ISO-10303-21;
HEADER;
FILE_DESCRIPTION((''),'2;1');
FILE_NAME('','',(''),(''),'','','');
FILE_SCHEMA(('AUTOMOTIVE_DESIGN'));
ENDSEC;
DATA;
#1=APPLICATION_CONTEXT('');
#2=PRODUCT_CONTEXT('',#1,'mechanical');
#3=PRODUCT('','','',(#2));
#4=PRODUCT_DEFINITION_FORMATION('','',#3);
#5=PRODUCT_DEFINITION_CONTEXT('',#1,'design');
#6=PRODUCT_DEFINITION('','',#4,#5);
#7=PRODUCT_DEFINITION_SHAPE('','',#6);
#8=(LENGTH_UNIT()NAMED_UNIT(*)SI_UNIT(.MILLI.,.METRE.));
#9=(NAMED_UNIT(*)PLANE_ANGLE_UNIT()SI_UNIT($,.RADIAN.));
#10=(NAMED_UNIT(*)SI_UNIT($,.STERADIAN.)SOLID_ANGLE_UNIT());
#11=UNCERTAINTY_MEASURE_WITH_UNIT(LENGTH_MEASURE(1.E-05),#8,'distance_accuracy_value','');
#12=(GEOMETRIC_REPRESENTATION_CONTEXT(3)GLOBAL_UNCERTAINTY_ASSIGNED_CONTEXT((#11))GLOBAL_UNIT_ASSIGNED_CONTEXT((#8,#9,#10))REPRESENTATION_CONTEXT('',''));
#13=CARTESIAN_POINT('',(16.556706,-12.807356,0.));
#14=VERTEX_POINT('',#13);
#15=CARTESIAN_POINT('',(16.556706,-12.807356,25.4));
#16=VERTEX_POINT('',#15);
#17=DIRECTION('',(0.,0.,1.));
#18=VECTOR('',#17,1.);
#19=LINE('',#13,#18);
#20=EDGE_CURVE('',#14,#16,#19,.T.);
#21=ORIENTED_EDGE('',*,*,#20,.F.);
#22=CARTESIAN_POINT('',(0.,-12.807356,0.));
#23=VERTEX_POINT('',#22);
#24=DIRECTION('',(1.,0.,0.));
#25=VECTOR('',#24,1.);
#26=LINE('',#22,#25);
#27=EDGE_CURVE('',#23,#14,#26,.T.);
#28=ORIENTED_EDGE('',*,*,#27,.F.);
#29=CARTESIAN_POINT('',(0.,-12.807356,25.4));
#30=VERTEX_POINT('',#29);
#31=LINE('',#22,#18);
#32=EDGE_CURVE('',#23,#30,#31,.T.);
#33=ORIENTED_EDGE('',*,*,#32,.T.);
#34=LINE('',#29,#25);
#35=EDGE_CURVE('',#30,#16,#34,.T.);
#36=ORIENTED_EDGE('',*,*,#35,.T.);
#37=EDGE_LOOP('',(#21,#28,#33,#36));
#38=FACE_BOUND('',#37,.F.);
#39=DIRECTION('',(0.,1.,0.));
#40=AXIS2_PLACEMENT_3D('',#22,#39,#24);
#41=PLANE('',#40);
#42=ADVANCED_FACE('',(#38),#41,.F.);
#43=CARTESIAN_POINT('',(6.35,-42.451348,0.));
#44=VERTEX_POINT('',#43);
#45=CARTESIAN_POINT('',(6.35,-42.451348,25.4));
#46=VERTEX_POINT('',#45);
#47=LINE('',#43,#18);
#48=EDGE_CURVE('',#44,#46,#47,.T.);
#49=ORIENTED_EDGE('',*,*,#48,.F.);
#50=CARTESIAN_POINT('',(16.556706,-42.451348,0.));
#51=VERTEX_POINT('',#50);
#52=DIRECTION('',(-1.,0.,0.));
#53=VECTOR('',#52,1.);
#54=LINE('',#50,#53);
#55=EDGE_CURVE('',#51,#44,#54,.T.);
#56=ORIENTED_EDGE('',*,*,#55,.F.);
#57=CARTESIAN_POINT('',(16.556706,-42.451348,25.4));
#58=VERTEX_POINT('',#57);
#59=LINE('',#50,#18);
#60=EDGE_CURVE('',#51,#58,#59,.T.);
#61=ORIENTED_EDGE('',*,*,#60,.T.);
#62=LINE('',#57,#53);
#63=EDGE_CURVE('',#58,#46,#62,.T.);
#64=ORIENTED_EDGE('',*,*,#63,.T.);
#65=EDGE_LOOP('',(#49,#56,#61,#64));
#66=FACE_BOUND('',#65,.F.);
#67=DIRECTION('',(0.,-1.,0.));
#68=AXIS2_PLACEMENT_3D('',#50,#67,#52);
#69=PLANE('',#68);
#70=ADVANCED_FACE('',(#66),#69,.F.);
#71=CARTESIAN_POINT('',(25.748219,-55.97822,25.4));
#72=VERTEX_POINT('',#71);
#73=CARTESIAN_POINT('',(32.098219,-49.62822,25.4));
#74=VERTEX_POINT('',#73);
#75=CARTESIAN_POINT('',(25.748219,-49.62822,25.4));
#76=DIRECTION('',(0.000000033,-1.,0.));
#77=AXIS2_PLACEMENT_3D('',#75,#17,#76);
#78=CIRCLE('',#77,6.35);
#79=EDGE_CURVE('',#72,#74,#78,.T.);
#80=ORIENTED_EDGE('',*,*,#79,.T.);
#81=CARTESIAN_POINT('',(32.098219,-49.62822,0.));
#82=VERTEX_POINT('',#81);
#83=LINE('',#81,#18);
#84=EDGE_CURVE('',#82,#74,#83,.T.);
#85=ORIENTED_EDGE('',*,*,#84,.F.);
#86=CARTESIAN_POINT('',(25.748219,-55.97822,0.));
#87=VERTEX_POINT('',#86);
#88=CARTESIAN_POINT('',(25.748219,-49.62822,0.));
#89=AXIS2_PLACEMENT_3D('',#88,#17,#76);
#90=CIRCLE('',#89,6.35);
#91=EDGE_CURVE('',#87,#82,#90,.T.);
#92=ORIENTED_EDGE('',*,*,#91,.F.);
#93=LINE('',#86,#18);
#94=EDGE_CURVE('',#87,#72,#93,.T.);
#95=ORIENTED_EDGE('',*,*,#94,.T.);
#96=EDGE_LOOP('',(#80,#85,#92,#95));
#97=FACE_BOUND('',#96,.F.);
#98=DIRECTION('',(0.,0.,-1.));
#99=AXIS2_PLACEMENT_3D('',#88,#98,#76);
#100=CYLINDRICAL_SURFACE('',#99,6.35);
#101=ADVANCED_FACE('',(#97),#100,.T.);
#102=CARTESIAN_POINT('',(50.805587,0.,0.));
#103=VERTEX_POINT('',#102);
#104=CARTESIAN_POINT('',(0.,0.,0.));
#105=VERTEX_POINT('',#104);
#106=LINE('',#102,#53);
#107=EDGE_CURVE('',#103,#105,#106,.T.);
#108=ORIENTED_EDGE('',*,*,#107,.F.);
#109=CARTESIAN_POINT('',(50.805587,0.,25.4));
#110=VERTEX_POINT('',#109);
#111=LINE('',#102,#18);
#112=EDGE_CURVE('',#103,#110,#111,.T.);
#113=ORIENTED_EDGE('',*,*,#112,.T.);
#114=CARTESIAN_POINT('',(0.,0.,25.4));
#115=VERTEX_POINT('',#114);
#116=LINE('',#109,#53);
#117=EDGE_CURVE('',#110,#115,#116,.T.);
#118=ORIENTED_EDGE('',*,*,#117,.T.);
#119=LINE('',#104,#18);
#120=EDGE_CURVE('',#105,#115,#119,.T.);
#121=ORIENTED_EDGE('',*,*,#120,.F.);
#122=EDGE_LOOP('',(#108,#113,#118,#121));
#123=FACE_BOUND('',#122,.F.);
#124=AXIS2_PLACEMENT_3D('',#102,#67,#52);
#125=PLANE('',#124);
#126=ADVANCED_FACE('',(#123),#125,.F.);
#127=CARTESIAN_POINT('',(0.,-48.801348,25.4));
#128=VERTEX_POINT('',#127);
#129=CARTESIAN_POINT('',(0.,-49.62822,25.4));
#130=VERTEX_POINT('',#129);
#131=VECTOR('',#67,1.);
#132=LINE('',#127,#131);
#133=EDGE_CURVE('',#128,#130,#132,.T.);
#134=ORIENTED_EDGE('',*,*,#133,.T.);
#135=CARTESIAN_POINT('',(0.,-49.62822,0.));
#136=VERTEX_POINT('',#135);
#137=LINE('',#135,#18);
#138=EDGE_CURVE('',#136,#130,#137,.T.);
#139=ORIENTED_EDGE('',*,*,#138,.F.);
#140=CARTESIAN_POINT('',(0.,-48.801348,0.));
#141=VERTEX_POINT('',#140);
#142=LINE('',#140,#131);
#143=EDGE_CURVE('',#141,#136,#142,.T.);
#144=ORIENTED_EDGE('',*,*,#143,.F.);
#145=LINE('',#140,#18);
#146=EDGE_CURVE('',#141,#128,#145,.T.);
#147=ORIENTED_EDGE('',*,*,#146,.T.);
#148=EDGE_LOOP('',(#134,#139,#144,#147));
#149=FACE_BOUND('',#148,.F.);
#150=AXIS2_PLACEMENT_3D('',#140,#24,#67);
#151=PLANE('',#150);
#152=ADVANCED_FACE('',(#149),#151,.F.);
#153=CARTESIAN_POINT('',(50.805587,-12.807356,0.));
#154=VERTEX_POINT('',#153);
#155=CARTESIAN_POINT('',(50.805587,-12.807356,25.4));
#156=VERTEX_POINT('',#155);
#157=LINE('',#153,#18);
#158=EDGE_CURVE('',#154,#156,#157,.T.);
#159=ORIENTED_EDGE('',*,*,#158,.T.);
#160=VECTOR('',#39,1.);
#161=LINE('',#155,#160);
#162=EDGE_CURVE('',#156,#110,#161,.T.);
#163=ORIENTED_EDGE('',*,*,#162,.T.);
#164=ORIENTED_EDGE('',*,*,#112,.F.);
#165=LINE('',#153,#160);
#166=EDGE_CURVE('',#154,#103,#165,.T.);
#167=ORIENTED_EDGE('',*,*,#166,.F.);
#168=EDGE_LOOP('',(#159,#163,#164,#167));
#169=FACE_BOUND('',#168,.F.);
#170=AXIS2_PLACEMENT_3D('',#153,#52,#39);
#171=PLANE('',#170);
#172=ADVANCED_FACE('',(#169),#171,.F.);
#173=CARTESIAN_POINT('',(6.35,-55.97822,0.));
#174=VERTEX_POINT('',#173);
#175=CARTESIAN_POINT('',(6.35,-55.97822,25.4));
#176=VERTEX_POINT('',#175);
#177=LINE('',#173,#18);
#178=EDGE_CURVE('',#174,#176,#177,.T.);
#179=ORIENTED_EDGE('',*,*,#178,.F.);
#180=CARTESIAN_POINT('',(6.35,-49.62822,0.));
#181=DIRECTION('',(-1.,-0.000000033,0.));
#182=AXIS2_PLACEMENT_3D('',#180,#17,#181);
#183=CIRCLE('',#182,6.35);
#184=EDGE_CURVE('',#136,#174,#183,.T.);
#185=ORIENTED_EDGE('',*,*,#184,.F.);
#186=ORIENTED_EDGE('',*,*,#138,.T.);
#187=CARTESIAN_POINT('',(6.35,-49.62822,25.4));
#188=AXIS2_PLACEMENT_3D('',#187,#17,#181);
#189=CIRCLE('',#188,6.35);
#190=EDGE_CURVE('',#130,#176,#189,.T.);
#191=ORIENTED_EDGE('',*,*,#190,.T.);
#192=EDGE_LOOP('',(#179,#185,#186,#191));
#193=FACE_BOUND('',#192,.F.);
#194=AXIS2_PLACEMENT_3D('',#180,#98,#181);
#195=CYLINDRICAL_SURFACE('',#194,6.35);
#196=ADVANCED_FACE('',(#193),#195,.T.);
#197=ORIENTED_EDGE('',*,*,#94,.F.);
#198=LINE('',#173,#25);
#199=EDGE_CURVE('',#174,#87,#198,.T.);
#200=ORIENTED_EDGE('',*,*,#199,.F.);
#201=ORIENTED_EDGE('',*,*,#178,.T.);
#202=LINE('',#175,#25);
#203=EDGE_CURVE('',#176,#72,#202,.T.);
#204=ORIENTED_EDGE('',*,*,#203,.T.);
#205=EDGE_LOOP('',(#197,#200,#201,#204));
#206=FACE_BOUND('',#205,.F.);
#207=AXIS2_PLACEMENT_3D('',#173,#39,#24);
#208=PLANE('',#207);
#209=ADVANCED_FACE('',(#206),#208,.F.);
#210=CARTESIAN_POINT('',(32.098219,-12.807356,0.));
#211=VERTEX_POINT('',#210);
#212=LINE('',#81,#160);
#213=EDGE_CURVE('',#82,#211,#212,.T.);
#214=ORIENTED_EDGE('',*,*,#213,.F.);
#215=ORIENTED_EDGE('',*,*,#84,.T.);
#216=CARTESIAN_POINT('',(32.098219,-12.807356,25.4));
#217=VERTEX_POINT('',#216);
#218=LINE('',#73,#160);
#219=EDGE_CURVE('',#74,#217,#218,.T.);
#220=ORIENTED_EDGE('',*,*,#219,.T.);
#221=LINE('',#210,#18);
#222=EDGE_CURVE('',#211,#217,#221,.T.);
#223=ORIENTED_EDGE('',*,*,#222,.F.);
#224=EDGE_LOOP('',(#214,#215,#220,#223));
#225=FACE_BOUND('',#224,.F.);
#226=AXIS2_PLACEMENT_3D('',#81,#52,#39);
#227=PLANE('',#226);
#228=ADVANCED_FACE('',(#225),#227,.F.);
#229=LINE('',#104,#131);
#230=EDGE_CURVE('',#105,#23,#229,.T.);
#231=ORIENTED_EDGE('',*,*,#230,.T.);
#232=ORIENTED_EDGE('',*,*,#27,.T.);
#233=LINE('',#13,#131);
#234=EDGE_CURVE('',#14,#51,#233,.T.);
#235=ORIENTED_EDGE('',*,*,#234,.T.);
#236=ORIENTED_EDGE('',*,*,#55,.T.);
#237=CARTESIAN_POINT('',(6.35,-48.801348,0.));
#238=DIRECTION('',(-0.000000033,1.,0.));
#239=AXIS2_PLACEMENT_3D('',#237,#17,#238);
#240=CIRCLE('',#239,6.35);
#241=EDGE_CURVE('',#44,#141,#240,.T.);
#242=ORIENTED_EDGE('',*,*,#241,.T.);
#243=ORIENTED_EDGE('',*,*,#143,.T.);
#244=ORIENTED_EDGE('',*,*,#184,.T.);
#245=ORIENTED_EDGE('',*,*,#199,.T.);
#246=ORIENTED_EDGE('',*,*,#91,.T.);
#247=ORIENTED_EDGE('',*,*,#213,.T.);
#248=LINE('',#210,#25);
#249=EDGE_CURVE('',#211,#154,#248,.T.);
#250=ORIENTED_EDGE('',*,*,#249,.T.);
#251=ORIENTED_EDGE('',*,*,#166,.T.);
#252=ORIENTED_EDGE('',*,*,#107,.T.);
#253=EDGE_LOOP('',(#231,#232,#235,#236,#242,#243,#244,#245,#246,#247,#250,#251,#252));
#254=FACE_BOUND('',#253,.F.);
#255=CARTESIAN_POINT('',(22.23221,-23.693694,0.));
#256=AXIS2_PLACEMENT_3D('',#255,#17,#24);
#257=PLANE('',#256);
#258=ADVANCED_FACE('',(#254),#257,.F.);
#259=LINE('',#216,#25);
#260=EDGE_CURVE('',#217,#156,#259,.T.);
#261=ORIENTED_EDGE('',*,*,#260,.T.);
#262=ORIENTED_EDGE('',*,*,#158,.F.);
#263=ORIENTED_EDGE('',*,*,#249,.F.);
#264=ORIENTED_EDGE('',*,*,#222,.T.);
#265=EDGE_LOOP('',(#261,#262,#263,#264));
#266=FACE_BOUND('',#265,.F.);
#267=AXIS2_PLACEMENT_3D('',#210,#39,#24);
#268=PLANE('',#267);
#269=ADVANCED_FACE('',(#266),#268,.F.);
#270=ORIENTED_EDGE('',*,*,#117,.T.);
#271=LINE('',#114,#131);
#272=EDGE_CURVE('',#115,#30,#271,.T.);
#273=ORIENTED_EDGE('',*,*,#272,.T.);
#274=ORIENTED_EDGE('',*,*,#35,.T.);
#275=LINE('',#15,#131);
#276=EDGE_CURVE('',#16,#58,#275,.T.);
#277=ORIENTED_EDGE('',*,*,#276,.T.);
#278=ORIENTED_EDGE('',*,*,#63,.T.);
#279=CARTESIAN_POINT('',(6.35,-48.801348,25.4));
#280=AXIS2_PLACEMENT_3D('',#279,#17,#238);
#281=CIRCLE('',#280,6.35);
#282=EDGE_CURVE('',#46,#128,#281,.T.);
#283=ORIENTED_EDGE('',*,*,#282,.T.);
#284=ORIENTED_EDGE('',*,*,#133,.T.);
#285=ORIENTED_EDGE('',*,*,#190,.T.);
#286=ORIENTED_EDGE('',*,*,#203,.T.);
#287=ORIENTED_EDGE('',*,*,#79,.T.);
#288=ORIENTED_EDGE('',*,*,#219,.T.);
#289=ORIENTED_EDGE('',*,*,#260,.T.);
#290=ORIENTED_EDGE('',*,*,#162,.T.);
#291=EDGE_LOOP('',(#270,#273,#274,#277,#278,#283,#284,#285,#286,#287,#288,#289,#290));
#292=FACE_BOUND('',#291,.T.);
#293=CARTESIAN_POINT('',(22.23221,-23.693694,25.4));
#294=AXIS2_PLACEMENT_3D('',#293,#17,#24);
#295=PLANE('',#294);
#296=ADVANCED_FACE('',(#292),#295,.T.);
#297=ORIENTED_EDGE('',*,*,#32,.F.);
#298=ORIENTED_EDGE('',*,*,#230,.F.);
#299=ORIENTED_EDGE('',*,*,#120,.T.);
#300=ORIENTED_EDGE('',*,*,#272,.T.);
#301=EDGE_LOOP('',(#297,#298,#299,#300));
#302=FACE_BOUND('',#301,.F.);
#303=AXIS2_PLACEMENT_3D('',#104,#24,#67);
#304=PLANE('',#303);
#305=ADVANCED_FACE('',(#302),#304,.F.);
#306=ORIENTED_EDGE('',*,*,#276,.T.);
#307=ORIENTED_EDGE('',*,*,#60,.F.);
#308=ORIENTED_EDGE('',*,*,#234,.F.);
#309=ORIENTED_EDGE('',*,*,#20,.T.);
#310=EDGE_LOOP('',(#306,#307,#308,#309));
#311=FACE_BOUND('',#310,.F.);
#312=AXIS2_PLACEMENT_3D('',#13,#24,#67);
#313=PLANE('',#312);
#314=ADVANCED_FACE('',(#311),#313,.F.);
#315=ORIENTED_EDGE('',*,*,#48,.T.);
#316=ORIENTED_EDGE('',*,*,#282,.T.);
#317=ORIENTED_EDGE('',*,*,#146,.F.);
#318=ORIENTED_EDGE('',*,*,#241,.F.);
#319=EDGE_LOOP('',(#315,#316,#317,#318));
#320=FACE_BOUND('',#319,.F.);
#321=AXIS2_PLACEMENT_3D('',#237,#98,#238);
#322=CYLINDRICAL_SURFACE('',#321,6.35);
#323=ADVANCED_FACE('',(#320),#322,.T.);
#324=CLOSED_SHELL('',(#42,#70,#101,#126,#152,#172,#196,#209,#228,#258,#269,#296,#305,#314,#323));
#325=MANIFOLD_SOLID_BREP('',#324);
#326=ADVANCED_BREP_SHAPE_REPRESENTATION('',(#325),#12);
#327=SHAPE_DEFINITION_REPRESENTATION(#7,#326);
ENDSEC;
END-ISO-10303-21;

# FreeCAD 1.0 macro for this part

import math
import FreeCAD as App
import Part
import Sketcher
from FreeCAD import Vector
Q = App.Units.Quantity

doc = App.newDocument("Part")
params = doc.addObject("Spreadsheet::Sheet", "Params")
for row, (alias, value) in enumerate([
    ("sketch1_radius", "0.25 in"),
    ("pad1_length", "1 in"),
], start=1):
    params.set(f"A{row}", alias)
    params.set(f"B{row}", "=" + value)
    params.setAlias(f"B{row}", alias)

body = doc.addObject("PartDesign::Body", "Body")

# Sketch on XY plane
sketch1 = body.newObject("Sketcher::SketchObject", "Sketch")
sketch1.AttachmentSupport = (doc.getObject("XY_Plane"), [""])
sketch1.MapMode = "FlatFace"
sketch1.addGeometry([
    Part.LineSegment(Vector(50.8, 0, 0), Vector(0, 0, 0)),  # 0
    Part.LineSegment(Vector(0, 0, 0), Vector(0, -12.8, 0)),  # 1
    Part.LineSegment(Vector(0, -12.8, 0), Vector(16.6, -12.8, 0)),  # 2
    Part.LineSegment(Vector(16.6, -12.8, 0), Vector(16.6, -42.5, 0)),  # 3
    Part.LineSegment(Vector(16.6, -42.5, 0), Vector(6.3, -42.5, 0)),  # 4
    Part.ArcOfCircle(Part.Circle(Vector(6.4, -48.8, 0), Vector(0, 0, 1), 6.4), math.radians(90), math.radians(180)),  # 5
    Part.LineSegment(Vector(0, -48.8, 0), Vector(0, -49.6, 0)),  # 6
    Part.ArcOfCircle(Part.Circle(Vector(6.4, -49.6, 0), Vector(0, 0, 1), 6.4), math.radians(-180), math.radians(-90)),  # 7
    Part.LineSegment(Vector(6.3, -56, 0), Vector(25.7, -56, 0)),  # 8
    Part.ArcOfCircle(Part.Circle(Vector(25.7, -49.6, 0), Vector(0, 0, 1), 6.4), math.radians(-90), math.radians(0)),  # 9
    Part.LineSegment(Vector(32.1, -49.6, 0), Vector(32.1, -12.8, 0)),  # 10
    Part.LineSegment(Vector(32.1, -12.8, 0), Vector(50.8, -12.8, 0)),  # 11
    Part.LineSegment(Vector(50.8, -12.8, 0), Vector(50.8, 0, 0)),  # 12
], False)
sketch1.addConstraint([
    Sketcher.Constraint("Coincident", 0, 2, 1, 1),
    Sketcher.Constraint("Coincident", 1, 2, 2, 1),
    Sketcher.Constraint("Coincident", 2, 2, 3, 1),
    Sketcher.Constraint("Coincident", 3, 2, 4, 1),
    Sketcher.Constraint("Tangent", 4, 2, 5, 1),
    Sketcher.Constraint("Tangent", 5, 2, 6, 1),
    Sketcher.Constraint("Tangent", 6, 2, 7, 1),
    Sketcher.Constraint("Tangent", 7, 2, 8, 1),
    Sketcher.Constraint("Tangent", 8, 2, 9, 1),
    Sketcher.Constraint("Tangent", 9, 2, 10, 1),
    Sketcher.Constraint("Coincident", 10, 2, 11, 1),
    Sketcher.Constraint("Coincident", 11, 2, 12, 1),
    Sketcher.Constraint("Coincident", 12, 2, 0, 1),
    Sketcher.Constraint("Horizontal", 0),
    Sketcher.Constraint("Vertical", 1),
    Sketcher.Constraint("Horizontal", 2),
    Sketcher.Constraint("Vertical", 3),
    Sketcher.Constraint("Horizontal", 4),
    Sketcher.Constraint("Vertical", 6),
    Sketcher.Constraint("Horizontal", 8),
    Sketcher.Constraint("Vertical", 10),
    Sketcher.Constraint("Horizontal", 11),
    Sketcher.Constraint("Vertical", 12),
    Sketcher.Constraint("Coincident", 0, 2, -1, 1),
    Sketcher.Constraint("Equal", 5, 7),
    Sketcher.Constraint("Equal", 7, 9),
    Sketcher.Constraint("PointOnObject", 5, 2, -2),
    Sketcher.Constraint("Horizontal", 2, 2, 10, 2),
    Sketcher.Constraint("Radius", 5, Q("0.25 in")),
    Sketcher.Constraint("DistanceX", 8, 1, 8, 2, Q("19.398219 mm")),
    Sketcher.Constraint("DistanceX", 11, 1, 11, 2, Q("18.707368 mm")),
    Sketcher.Constraint("DistanceX", 2, 1, 2, 2, Q("16.556706 mm")),
    Sketcher.Constraint("DistanceY", 1, 2, 1, 1, Q("12.807356 mm")),
    Sketcher.Constraint("DistanceY", 3, 2, 3, 1, Q("29.643992 mm")),
    Sketcher.Constraint("DistanceY", 6, 2, 6, 1, Q("0.826872 mm")),
])
sketch1.setExpression("Constraints[28]", "Params.sketch1_radius")
pad1 = body.newObject("PartDesign::Pad", "Pad")
pad1.Profile = sketch1
pad1.setExpression("Length", "Params.pad1_length")

doc.recompute()
